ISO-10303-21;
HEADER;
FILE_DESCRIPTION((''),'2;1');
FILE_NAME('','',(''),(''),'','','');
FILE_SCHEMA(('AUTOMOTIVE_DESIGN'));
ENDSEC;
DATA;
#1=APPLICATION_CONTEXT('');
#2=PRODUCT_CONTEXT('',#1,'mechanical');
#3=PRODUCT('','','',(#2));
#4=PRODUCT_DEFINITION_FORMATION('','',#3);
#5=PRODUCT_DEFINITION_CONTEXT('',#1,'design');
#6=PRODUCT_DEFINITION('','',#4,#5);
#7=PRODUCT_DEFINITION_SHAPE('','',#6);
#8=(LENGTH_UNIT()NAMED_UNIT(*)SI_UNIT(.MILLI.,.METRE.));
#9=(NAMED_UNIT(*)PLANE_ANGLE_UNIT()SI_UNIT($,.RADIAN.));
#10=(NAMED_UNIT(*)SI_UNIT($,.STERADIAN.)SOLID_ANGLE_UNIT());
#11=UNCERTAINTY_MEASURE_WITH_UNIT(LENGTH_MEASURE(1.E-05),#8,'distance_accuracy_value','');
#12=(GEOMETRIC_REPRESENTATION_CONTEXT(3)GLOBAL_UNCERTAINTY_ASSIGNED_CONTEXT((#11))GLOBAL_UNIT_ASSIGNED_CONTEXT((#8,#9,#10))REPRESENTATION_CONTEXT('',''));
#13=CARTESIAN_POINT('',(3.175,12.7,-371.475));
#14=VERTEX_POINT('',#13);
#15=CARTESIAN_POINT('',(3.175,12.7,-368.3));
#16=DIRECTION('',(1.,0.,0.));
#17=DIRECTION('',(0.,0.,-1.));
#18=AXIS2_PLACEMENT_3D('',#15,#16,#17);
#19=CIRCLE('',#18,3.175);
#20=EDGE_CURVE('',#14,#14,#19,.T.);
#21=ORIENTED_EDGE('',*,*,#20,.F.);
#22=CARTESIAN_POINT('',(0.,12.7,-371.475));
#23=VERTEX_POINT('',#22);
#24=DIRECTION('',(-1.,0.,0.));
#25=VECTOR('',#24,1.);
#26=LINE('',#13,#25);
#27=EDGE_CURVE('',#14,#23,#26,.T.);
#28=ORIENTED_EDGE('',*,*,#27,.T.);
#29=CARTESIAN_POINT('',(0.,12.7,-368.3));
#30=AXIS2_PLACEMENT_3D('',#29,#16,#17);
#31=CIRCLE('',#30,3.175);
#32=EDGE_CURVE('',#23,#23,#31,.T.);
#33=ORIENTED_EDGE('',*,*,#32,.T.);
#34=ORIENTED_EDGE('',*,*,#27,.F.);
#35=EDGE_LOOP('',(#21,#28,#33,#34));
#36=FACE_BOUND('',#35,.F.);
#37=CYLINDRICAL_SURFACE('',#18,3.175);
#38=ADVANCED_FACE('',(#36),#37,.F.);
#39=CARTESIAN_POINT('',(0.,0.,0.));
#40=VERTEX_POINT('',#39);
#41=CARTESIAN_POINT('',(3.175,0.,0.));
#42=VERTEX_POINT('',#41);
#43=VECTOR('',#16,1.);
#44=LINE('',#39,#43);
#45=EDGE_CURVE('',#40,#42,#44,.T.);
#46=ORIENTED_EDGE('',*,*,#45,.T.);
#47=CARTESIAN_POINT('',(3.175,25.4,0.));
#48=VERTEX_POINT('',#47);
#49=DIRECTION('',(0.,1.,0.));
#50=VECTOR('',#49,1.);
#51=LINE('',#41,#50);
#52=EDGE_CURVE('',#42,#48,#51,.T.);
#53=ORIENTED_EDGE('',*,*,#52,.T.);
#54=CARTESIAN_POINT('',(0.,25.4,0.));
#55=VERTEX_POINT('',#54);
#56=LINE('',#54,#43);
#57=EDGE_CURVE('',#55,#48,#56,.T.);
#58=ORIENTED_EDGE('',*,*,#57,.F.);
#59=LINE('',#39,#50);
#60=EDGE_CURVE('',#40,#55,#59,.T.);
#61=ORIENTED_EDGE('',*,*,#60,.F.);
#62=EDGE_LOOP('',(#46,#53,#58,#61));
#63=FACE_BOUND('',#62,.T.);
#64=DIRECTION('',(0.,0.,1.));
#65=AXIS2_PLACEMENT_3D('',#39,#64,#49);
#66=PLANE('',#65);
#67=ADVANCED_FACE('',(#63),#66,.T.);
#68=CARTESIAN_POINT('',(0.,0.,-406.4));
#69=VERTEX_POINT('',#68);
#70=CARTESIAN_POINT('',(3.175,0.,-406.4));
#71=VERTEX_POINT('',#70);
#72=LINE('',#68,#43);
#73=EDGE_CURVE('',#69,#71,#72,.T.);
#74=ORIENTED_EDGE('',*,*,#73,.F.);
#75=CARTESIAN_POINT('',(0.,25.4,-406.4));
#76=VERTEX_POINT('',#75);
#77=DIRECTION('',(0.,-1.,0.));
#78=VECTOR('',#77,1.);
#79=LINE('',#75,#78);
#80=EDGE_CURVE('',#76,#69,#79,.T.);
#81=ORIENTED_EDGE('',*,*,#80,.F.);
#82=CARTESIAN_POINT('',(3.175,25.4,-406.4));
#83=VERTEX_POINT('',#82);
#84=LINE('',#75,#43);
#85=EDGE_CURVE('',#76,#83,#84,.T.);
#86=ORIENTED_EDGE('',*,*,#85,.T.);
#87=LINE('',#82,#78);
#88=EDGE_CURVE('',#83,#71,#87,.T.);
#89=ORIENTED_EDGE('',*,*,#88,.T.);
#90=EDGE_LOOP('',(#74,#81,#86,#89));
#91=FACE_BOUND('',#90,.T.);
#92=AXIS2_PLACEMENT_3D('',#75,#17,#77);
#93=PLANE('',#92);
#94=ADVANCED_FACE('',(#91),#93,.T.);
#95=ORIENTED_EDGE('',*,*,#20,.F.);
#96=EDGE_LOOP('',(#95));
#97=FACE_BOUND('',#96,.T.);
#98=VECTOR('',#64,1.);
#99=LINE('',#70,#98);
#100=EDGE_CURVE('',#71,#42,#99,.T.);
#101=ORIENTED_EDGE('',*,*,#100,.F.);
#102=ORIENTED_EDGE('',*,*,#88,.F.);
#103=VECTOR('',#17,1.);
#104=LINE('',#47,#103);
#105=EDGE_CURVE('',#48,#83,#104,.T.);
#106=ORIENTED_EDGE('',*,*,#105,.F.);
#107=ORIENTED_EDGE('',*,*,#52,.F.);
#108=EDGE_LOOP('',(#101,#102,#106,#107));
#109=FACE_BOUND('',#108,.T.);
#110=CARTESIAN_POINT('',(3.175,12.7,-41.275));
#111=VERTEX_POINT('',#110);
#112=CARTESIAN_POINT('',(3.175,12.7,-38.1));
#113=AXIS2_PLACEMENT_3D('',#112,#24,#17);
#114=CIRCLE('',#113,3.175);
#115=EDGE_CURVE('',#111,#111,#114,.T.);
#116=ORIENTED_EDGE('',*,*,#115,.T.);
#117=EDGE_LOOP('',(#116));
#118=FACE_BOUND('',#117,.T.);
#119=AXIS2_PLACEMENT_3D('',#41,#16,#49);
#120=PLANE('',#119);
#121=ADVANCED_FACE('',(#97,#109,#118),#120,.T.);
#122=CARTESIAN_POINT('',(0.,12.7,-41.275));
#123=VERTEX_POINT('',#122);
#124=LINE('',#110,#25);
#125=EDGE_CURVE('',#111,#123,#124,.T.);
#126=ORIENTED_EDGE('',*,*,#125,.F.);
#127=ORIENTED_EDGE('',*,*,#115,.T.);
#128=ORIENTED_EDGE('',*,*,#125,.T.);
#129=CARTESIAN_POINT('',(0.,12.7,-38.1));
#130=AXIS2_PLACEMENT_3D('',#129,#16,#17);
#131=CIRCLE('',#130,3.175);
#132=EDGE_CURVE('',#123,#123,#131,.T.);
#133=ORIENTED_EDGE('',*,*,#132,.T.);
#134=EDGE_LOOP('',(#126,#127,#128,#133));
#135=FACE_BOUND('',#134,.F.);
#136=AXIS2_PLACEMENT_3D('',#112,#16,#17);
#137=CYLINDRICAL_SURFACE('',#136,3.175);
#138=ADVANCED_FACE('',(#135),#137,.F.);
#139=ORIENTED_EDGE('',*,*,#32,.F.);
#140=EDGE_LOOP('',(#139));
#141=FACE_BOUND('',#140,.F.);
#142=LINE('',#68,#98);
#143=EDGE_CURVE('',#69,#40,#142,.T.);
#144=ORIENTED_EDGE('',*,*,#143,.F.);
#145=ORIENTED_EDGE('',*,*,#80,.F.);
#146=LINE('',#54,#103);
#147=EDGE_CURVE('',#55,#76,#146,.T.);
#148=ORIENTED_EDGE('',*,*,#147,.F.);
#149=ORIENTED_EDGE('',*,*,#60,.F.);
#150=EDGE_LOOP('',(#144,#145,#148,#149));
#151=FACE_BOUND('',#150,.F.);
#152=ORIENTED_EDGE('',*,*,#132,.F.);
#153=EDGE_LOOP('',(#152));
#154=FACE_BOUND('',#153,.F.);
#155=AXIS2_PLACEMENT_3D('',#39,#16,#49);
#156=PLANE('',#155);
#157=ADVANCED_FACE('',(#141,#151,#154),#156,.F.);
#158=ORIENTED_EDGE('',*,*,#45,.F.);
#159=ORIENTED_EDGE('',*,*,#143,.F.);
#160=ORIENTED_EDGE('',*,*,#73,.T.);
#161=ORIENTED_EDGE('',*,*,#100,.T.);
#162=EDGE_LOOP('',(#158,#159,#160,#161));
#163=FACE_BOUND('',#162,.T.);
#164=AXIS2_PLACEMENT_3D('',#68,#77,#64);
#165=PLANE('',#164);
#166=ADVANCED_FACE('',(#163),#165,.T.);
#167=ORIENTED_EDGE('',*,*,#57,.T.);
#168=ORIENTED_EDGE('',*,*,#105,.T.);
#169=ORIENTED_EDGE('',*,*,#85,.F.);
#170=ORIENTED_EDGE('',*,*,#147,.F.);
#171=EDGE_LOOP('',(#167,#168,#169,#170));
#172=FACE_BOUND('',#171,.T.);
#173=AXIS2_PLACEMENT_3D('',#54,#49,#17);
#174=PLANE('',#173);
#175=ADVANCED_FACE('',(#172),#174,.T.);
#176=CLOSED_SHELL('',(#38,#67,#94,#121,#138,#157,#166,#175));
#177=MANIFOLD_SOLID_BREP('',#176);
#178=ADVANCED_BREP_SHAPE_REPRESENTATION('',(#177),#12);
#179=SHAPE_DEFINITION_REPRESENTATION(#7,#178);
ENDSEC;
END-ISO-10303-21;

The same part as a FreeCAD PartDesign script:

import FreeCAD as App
import Part
import Sketcher
from FreeCAD import Vector
Q = App.Units.Quantity


def add_polygon(sketch, points):
    """Adds a closed chain of lines whose ends are joined by coincident constraints."""
    first, n = sketch.GeometryCount, len(points)
    for a, b in zip(points, points[1:] + points[:1]):
        sketch.addGeometry(Part.LineSegment(App.Vector(*a, 0), App.Vector(*b, 0)), False)
    for i in range(n):
        sketch.addConstraint(Sketcher.Constraint("Coincident", first + i, 2, first + (i + 1) % n, 1))

doc = App.newDocument("Part")
params = doc.addObject("Spreadsheet::Sheet", "Params")
for row, (alias, value) in enumerate([
    ("sketch1_width", "1 in"),
    ("sketch1_height", "16 in"),
    ("pad1_length", "0.125 in"),
    ("sketch2_diameter", "0.25 in"),
    ("pocket1_length", "0.125 in"),
], start=1):
    params.set(f"A{row}", alias)
    params.set(f"B{row}", "=" + value)
    params.setAlias(f"B{row}", alias)

body = doc.addObject("PartDesign::Body", "Body")

# Sketch on YZ plane
sketch1 = body.newObject("Sketcher::SketchObject", "Sketch")
sketch1.AttachmentSupport = (doc.getObject("YZ_Plane"), [""])
sketch1.MapMode = "FlatFace"
add_polygon(sketch1, [(25, 0), (0, 0), (0, -406), (25, -406)])  # lines 0-3
sketch1.addConstraint(Sketcher.Constraint("Horizontal", 0))
sketch1.addConstraint(Sketcher.Constraint("Vertical", 1))
sketch1.addConstraint(Sketcher.Constraint("Horizontal", 2))
sketch1.addConstraint(Sketcher.Constraint("Vertical", 3))
sketch1.addConstraint(Sketcher.Constraint("Coincident", 0, 2, -1, 1))
sketch1.addConstraint(Sketcher.Constraint("DistanceX", 0, 2, 0, 1, Q("1 in")))
sketch1.addConstraint(Sketcher.Constraint("DistanceY", 1, 2, 1, 1, Q("16 in")))
sketch1.setExpression("Constraints[9]", "Params.sketch1_width")
sketch1.setExpression("Constraints[10]", "Params.sketch1_height")
pad1 = body.newObject("PartDesign::Pad", "Pad")
pad1.Profile = sketch1
pad1.setExpression("Length", "Params.pad1_length")

# Sketch on YZ plane
sketch2 = body.newObject("Sketcher::SketchObject", "Sketch001")
sketch2.AttachmentSupport = (doc.getObject("YZ_Plane"), [""])
sketch2.MapMode = "FlatFace"
sketch2.AttachmentOffset = App.Placement(Vector(0, 0, 0.125 * 25.4), App.Rotation())
sketch2.addGeometry(Part.Circle(Vector(12.7, -38.1, 0), Vector(0, 0, 1), 3.2), False)
sketch2.addGeometry(Part.Circle(Vector(12.7, -368.3, 0), Vector(0, 0, 1), 3.2), False)
sketch2.addConstraint(Sketcher.Constraint("Equal", 0, 1))
sketch2.addConstraint(Sketcher.Constraint("Vertical", 0, 3, 1, 3))
sketch2.addConstraint(Sketcher.Constraint("Diameter", 0, Q("0.25 in")))
sketch2.addConstraint(Sketcher.Constraint("DistanceY", 0, 3, -1, 1, Q("1.5 in")))
sketch2.addConstraint(Sketcher.Constraint("DistanceY", 1, 3, 0, 3, Q("13 in")))
sketch2.addConstraint(Sketcher.Constraint("DistanceX", -1, 1, 0, 3, Q("0.5 in")))
sketch2.setExpression("Constraints[2]", "Params.sketch2_diameter")
pocket1 = body.newObject("PartDesign::Pocket", "Pocket")
pocket1.Profile = sketch2
pocket1.setExpression("Length", "Params.pocket1_length")

doc.recompute()
